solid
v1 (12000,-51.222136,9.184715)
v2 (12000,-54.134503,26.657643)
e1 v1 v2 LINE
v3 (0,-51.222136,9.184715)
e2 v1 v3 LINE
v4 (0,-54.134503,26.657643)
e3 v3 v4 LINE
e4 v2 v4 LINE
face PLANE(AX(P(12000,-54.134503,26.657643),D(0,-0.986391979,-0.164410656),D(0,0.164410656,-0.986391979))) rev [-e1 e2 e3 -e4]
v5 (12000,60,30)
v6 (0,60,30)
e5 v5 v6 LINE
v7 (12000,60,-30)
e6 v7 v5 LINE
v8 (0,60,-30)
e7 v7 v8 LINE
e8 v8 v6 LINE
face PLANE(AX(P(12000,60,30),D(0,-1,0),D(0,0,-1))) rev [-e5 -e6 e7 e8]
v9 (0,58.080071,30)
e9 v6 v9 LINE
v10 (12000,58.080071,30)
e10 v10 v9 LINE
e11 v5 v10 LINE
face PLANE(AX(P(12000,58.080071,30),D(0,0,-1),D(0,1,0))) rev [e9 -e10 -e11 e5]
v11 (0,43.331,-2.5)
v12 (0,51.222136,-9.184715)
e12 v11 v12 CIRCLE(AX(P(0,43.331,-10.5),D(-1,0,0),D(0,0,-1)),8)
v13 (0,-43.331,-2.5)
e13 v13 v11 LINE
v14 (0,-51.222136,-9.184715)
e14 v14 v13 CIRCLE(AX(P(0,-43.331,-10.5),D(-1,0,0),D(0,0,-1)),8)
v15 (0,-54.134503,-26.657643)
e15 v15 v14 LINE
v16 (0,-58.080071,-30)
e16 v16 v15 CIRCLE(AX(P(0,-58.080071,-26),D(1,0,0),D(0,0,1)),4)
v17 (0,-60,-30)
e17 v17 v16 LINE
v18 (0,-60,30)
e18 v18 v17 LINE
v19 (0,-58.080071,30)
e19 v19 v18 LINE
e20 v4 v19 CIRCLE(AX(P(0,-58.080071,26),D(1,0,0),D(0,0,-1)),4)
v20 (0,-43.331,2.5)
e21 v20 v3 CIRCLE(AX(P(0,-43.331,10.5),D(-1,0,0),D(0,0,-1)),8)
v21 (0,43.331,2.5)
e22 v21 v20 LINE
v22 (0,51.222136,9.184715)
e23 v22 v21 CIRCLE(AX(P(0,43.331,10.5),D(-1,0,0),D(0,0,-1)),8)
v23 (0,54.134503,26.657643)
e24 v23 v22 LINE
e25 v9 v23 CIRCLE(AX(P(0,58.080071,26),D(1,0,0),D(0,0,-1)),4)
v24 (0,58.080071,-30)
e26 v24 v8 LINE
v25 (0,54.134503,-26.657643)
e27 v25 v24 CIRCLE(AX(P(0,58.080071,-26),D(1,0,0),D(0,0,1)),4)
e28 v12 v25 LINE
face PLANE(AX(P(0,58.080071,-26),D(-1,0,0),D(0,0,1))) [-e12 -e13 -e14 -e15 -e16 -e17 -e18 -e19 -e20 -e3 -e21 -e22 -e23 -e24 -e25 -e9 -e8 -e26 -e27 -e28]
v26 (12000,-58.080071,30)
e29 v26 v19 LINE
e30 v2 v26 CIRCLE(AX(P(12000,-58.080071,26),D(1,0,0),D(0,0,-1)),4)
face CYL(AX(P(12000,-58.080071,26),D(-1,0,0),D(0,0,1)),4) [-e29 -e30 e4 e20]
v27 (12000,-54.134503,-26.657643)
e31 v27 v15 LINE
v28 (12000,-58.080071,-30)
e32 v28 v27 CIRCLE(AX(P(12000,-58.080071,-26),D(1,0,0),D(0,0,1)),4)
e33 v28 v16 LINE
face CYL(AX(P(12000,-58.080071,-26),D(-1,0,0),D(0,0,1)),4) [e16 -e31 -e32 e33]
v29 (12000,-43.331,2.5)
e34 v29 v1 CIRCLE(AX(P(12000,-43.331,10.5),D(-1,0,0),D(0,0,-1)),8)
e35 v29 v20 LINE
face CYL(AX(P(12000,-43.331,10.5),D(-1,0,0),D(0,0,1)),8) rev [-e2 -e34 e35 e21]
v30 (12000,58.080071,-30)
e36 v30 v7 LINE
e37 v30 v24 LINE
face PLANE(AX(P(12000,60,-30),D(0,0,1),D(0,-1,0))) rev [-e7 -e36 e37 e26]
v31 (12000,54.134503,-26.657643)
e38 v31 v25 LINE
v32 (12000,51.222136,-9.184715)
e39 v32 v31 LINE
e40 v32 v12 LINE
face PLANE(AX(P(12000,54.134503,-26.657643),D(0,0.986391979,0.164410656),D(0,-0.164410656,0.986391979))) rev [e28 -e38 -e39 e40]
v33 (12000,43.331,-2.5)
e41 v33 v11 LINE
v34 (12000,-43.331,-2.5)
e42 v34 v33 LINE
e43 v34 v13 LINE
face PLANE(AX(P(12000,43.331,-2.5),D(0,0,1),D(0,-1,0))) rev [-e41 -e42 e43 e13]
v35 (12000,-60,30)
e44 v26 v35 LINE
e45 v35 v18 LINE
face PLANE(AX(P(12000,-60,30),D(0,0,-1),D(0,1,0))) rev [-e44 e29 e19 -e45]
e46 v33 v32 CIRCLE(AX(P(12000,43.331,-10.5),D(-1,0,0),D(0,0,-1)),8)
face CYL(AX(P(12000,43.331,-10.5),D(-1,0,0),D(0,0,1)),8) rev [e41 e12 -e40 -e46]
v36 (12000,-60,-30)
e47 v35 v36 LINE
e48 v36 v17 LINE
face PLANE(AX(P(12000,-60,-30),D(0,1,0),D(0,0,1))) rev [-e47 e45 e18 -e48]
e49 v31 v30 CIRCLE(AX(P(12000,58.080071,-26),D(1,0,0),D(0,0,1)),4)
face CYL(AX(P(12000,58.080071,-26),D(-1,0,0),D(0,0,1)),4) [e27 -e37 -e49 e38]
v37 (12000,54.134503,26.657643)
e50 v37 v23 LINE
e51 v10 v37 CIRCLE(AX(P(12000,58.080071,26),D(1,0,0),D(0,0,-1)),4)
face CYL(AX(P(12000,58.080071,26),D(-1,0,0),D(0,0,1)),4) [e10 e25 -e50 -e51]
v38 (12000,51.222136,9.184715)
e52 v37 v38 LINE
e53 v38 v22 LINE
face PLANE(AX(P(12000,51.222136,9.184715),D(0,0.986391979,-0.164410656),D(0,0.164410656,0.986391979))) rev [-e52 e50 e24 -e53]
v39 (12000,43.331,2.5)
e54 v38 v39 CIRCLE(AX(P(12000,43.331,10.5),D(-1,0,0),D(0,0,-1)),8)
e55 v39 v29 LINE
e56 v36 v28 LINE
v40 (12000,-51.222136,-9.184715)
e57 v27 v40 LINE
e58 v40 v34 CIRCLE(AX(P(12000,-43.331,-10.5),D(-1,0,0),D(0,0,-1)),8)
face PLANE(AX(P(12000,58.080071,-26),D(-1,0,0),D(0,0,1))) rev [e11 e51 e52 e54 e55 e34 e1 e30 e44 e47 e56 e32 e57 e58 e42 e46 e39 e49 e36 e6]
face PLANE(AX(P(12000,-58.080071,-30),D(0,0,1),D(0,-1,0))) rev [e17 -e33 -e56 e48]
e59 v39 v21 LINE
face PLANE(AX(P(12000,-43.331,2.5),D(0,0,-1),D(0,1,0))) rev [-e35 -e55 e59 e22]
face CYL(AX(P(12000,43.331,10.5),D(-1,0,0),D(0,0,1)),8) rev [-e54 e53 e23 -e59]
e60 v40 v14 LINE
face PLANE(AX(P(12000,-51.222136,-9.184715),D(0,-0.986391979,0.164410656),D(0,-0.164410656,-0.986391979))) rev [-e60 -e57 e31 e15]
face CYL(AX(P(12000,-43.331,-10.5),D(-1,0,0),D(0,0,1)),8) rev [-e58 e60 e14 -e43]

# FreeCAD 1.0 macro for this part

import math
import FreeCAD as App
import Part
import Sketcher
Q = App.Units.Quantity

doc = App.newDocument("Part")
params = doc.addObject("Spreadsheet::Sheet", "Params")
for row, (alias, value) in enumerate([
    ("sketch1_radius", "4 mm"),
    ("sketch1_radius2", "8 mm"),
    ("sketch1_height", "60 mm"),
    ("pad1_length", "12000 mm"),
], start=1):
    params.set(f"A{row}", alias)
    params.set(f"B{row}", "=" + value)
    params.setAlias(f"B{row}", alias)

body = doc.addObject("PartDesign::Body", "Body")

sketch1 = body.newObject("Sketcher::SketchObject", "Sketch")
sketch1.AttachmentSupport = (doc.getObject("YZ_Plane"), [""])
sketch1.MapMode = "FlatFace"
sketch1.addGeometry([
    Part.LineSegment(App.Vector(58.1, -30, 0), App.Vector(60, -30, 0)),
    Part.LineSegment(App.Vector(60, -30, 0), App.Vector(60, 30, 0)),
    Part.LineSegment(App.Vector(60, 30, 0), App.Vector(58.1, 30, 0)),
    Part.ArcOfCircle(Part.Circle(App.Vector(58.1, 26, 0), App.Vector(0, 0, 1), 4), math.radians(90), math.radians(171)),
    Part.LineSegment(App.Vector(54.1, 26.7, 0), App.Vector(51.2, 9.2, 0)),
    Part.ArcOfCircle(Part.Circle(App.Vector(43.3, 10.5, 0), App.Vector(0, 0, 1), 8), math.radians(-90), math.radians(-9)),
    Part.LineSegment(App.Vector(43.3, 2.5, 0), App.Vector(-43.3, 2.5, 0)),
    Part.ArcOfCircle(Part.Circle(App.Vector(-43.3, 10.5, 0), App.Vector(0, 0, 1), 8), math.radians(-171), math.radians(-90)),
    Part.LineSegment(App.Vector(-51.2, 9.2, 0), App.Vector(-54.1, 26.7, 0)),
    Part.ArcOfCircle(Part.Circle(App.Vector(-58.1, 26, 0), App.Vector(0, 0, 1), 4), math.radians(9), math.radians(90)),
    Part.LineSegment(App.Vector(-58.1, 30, 0), App.Vector(-60, 30, 0)),
    Part.LineSegment(App.Vector(-60, 30, 0), App.Vector(-60, -30, 0)),
    Part.LineSegment(App.Vector(-60, -30, 0), App.Vector(-58.1, -30, 0)),
    Part.ArcOfCircle(Part.Circle(App.Vector(-58.1, -26, 0), App.Vector(0, 0, 1), 4), math.radians(-90), math.radians(-9)),
    Part.LineSegment(App.Vector(-54.1, -26.7, 0), App.Vector(-51.2, -9.2, 0)),
    Part.ArcOfCircle(Part.Circle(App.Vector(-43.3, -10.5, 0), App.Vector(0, 0, 1), 8), math.radians(90), math.radians(171)),
    Part.LineSegment(App.Vector(-43.3, -2.5, 0), App.Vector(43.3, -2.5, 0)),
    Part.ArcOfCircle(Part.Circle(App.Vector(43.3, -10.5, 0), App.Vector(0, 0, 1), 8), math.radians(9), math.radians(90)),
    Part.LineSegment(App.Vector(51.2, -9.2, 0), App.Vector(54.1, -26.7, 0)),
    Part.ArcOfCircle(Part.Circle(App.Vector(58.1, -26, 0), App.Vector(0, 0, 1), 4), math.radians(-171), math.radians(-90)),
], False)
sketch1.addConstraint([
    Sketcher.Constraint("Coincident", 0, 2, 1, 1),
    Sketcher.Constraint("Coincident", 1, 2, 2, 1),
    Sketcher.Constraint("Tangent", 2, 2, 3, 1),
    Sketcher.Constraint("Tangent", 3, 2, 4, 1),
    Sketcher.Constraint("Tangent", 4, 2, 5, 2),
    Sketcher.Constraint("Tangent", 5, 1, 6, 1),
    Sketcher.Constraint("Tangent", 6, 2, 7, 2),
    Sketcher.Constraint("Tangent", 7, 1, 8, 1),
    Sketcher.Constraint("Tangent", 8, 2, 9, 1),
    Sketcher.Constraint("Tangent", 9, 2, 10, 1),
    Sketcher.Constraint("Coincident", 10, 2, 11, 1),
    Sketcher.Constraint("Coincident", 11, 2, 12, 1),
    Sketcher.Constraint("Tangent", 12, 2, 13, 1),
    Sketcher.Constraint("Tangent", 13, 2, 14, 1),
    Sketcher.Constraint("Tangent", 14, 2, 15, 2),
    Sketcher.Constraint("Tangent", 15, 1, 16, 1),
    Sketcher.Constraint("Tangent", 16, 2, 17, 2),
    Sketcher.Constraint("Tangent", 17, 1, 18, 1),
    Sketcher.Constraint("Tangent", 18, 2, 19, 1),
    Sketcher.Constraint("Tangent", 19, 2, 0, 1),
    Sketcher.Constraint("Horizontal", 0),
    Sketcher.Constraint("Vertical", 1),
    Sketcher.Constraint("Horizontal", 2),
    Sketcher.Constraint("Horizontal", 6),
    Sketcher.Constraint("Horizontal", 10),
    Sketcher.Constraint("Vertical", 11),
    Sketcher.Constraint("Horizontal", 12),
    Sketcher.Constraint("Horizontal", 16),
    Sketcher.Constraint("Equal", 5, 7),
    Sketcher.Constraint("Equal", 3, 9),
    Sketcher.Constraint("Equal", 9, 13),
    Sketcher.Constraint("Equal", 7, 15),
    Sketcher.Constraint("Equal", 15, 17),
    Sketcher.Constraint("Equal", 13, 19),
    Sketcher.Constraint("Symmetric", 3, 3, 13, 3, -1, 1),
    Sketcher.Constraint("Symmetric", 5, 3, 15, 3, -1, 1),
    Sketcher.Constraint("Symmetric", 9, 3, 19, 3, -1, 1),
    Sketcher.Constraint("Symmetric", 3, 3, 9, 3, -2),
    Sketcher.Constraint("Parallel", 8, 18),
    Sketcher.Constraint("Horizontal", 4, 2, 7, 1),
    Sketcher.Constraint("Equal", 2, 10),
    Sketcher.Constraint("Radius", 3, Q("4 mm")),
    Sketcher.Constraint("Radius", 5, Q("8 mm")),
    Sketcher.Constraint("DistanceY", 1, 1, 1, 2, Q("60 mm")),
    Sketcher.Constraint("DistanceX", -1, 1, 0, 2, Q("60 mm")),
    Sketcher.Constraint("DistanceY", 15, 3, 7, 3, Q("21 mm")),
    Sketcher.Constraint("DistanceX", 6, 2, 6, 1, Q("86.662 mm")),
    Sketcher.Constraint("DistanceX", 0, 1, 0, 2, Q("1.919929 mm")),
])
sketch1.setExpression("Constraints[41]", "Params.sketch1_radius")
sketch1.setExpression("Constraints[42]", "Params.sketch1_radius2")
sketch1.setExpression("Constraints[43]", "Params.sketch1_height")
pad1 = body.newObject("PartDesign::Pad", "Pad")
pad1.Profile = sketch1
pad1.setExpression("Length", "Params.pad1_length")

doc.recompute()
